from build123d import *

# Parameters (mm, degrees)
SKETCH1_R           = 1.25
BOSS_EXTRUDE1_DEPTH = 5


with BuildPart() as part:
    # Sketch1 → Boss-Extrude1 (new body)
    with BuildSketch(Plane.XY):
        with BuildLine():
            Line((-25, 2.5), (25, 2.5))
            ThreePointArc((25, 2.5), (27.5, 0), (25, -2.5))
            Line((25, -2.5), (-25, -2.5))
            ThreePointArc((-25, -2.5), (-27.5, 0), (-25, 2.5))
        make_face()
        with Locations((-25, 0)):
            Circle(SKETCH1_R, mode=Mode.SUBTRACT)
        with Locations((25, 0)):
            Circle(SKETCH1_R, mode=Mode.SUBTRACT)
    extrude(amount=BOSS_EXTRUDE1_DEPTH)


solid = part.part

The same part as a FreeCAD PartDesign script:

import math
import FreeCAD as App
import Part
import Sketcher
from FreeCAD import Vector

doc = App.newDocument("Part")
body = doc.addObject("PartDesign::Body", "Body")

sketch1 = body.newObject("Sketcher::SketchObject", "Sketch")
sketch1.AttachmentSupport = (doc.getObject("XY_Plane"), [""])
sketch1.MapMode = "FlatFace"
sketch1.addGeometry([
    Part.LineSegment(Vector(25, 2.5, 0), Vector(-25, 2.5, 0)),
    Part.ArcOfCircle(Part.Circle(Vector(-25, 0, 0), Vector(0, 0, 1), 2.5), math.radians(90), math.radians(270)),
    Part.LineSegment(Vector(-25, -2.5, 0), Vector(25, -2.5, 0)),
    Part.ArcOfCircle(Part.Circle(Vector(25, 0, 0), Vector(0, 0, 1), 2.5), math.radians(-90), math.radians(90)),
    Part.Circle(Vector(25, 0, 0), Vector(0, 0, 1), 1.2),
    Part.Circle(Vector(-25, 0, 0), Vector(0, 0, 1), 1.2),
], False)
sketch1.addConstraint([
    Sketcher.Constraint("Tangent", 0, 2, 1, 1),
    Sketcher.Constraint("Tangent", 1, 2, 2, 1),
    Sketcher.Constraint("Tangent", 2, 2, 3, 1),
    Sketcher.Constraint("Tangent", 3, 2, 0, 1),
    Sketcher.Constraint("Horizontal", 0),
    Sketcher.Constraint("Horizontal", 2),
    Sketcher.Constraint("Coincident", 4, 3, 3, 3),
    Sketcher.Constraint("Coincident", 5, 3, 1, 3),
    Sketcher.Constraint("Equal", 4, 5),
    Sketcher.Constraint("Symmetric", 1, 3, 3, 3, -1, 1),
    Sketcher.Constraint("Diameter", 4, 2.5),
    Sketcher.Constraint("Radius", 1, 2.5),
    Sketcher.Constraint("DistanceX", 0, 2, 0, 1, 50.0),
])
pad1 = body.newObject("PartDesign::Pad", "Pad")
pad1.Profile = sketch1
pad1.Length = 5

doc.recompute()
